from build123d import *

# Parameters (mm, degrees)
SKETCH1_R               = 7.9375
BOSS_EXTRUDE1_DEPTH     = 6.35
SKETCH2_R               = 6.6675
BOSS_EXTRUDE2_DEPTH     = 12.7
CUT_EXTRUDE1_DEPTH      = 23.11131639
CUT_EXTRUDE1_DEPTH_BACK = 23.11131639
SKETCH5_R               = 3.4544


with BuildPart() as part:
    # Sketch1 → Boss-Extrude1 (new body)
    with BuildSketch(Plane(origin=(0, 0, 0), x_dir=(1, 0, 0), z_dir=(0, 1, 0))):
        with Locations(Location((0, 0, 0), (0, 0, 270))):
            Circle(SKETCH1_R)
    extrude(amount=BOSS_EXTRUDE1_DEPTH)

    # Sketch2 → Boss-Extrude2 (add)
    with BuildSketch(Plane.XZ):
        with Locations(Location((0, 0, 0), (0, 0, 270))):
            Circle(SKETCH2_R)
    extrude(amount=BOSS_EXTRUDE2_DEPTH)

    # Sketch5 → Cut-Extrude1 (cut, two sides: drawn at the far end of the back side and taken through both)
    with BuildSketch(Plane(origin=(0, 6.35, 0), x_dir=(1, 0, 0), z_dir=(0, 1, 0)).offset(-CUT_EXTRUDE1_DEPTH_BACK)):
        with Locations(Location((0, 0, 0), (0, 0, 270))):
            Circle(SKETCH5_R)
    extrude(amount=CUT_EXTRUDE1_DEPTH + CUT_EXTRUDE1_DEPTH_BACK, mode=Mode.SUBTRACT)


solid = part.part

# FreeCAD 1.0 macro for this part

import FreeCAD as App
import Part
import Sketcher

V = App.Vector
Q = App.Units.Quantity

doc = App.newDocument("Part")
body = doc.addObject("PartDesign::Body", "Body")

# Sketch on XZ plane
sketch1 = doc.addObject("Sketcher::SketchObject", "Sketch")
body.addObject(sketch1)
sketch1.AttachmentSupport = (doc.XZ_Plane, [""])
sketch1.MapMode = "FlatFace"
sketch1.addGeometry(Part.Circle(V(0, 0, 0), V(0, 0, 1), 8), False)
sketch1.addConstraint([
    Sketcher.Constraint("Coincident", 0, 3, -1, 1),
    Sketcher.Constraint("Diameter", 0, Q("0.625 in")),
])
pad1 = doc.addObject("PartDesign::Pad", "Pad")
body.addObject(pad1)
pad1.Profile = sketch1
pad1.Length = Q("0.25 in")
pad1.Reversed = True

# Sketch on XZ plane
sketch2 = doc.addObject("Sketcher::SketchObject", "Sketch001")
body.addObject(sketch2)
sketch2.AttachmentSupport = (doc.XZ_Plane, [""])
sketch2.MapMode = "FlatFace"
sketch2.addGeometry(Part.Circle(V(0, 0, 0), V(0, 0, 1), 7), False)
sketch2.addConstraint([
    Sketcher.Constraint("Coincident", 0, 3, -1, 1),
    Sketcher.Constraint("Diameter", 0, Q("0.525 in")),
])
pad2 = doc.addObject("PartDesign::Pad", "Pad001")
body.addObject(pad2)
pad2.Profile = sketch2
pad2.Length = Q("0.5 in")

# Sketch on XZ plane
sketch3 = doc.addObject("Sketcher::SketchObject", "Sketch002")
body.addObject(sketch3)
sketch3.AttachmentSupport = (doc.XZ_Plane, [""])
sketch3.MapMode = "FlatFace"
sketch3.AttachmentOffset = App.Placement(V(0, 0, -0.25 * 25.4), App.Rotation())
sketch3.addGeometry(Part.Circle(V(0, 0, 0), V(0, 0, 1), 3.5), False)
sketch3.addConstraint([
    Sketcher.Constraint("Coincident", 0, 3, -1, 1),
    Sketcher.Constraint("Diameter", 0, Q("0.272 in")),
])
pocket1 = doc.addObject("PartDesign::Pocket", "Pocket")
body.addObject(pocket1)
pocket1.Profile = sketch3
pocket1.Type = "ThroughAll"
pocket1.Midplane = True

doc.recompute()
